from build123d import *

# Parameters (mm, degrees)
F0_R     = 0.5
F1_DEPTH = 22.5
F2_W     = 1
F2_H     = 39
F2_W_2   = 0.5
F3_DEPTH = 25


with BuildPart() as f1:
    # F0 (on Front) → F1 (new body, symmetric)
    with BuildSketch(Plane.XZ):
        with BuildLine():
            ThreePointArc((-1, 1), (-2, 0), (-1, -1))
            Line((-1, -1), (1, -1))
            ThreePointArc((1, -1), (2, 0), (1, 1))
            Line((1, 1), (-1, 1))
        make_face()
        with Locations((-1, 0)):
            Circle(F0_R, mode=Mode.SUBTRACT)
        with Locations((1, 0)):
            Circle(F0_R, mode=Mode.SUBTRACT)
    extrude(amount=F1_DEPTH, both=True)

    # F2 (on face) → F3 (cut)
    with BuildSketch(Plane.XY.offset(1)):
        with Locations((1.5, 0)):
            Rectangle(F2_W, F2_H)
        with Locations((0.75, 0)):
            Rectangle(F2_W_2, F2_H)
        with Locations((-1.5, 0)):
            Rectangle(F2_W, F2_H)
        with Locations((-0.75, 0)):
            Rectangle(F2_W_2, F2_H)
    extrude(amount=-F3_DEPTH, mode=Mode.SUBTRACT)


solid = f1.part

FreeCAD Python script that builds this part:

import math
import FreeCAD as App
import Part
import Sketcher


def add_polygon(sketch, points):
    """Adds a closed chain of lines whose ends are joined by coincident constraints."""
    first, n = sketch.GeometryCount, len(points)
    for a, b in zip(points, points[1:] + points[:1]):
        sketch.addGeometry(Part.LineSegment(App.Vector(*a, 0), App.Vector(*b, 0)), False)
    for i in range(n):
        sketch.addConstraint(Sketcher.Constraint("Coincident", first + i, 2, first + (i + 1) % n, 1))

doc = App.newDocument("Part")
body = doc.addObject("PartDesign::Body", "Body")

# Sketch on XZ plane
sketch1 = body.newObject("Sketcher::SketchObject", "Sketch")
sketch1.AttachmentSupport = (doc.getObject("XZ_Plane"), [""])
sketch1.MapMode = "FlatFace"
sketch1.addGeometry(Part.ArcOfCircle(Part.Circle(App.Vector(-1, 0, 0), App.Vector(0, 0, 1), 1), math.radians(90), math.radians(270)), False)
sketch1.addGeometry(Part.LineSegment(App.Vector(-1, -1, 0), App.Vector(1, -1, 0)), False)
sketch1.addGeometry(Part.ArcOfCircle(Part.Circle(App.Vector(1, 0, 0), App.Vector(0, 0, 1), 1), math.radians(-90), math.radians(90)), False)
sketch1.addGeometry(Part.LineSegment(App.Vector(1, 1, 0), App.Vector(-1, 1, 0)), False)
sketch1.addGeometry(Part.Circle(App.Vector(-1, 0, 0), App.Vector(0, 0, 1), 0.5), False)
sketch1.addGeometry(Part.Circle(App.Vector(1, 0, 0), App.Vector(0, 0, 1), 0.5), False)
sketch1.addConstraint(Sketcher.Constraint("Tangent", 0, 2, 1, 1))
sketch1.addConstraint(Sketcher.Constraint("Tangent", 1, 2, 2, 1))
sketch1.addConstraint(Sketcher.Constraint("Tangent", 2, 2, 3, 1))
sketch1.addConstraint(Sketcher.Constraint("Tangent", 3, 2, 0, 1))
sketch1.addConstraint(Sketcher.Constraint("Horizontal", 1))
sketch1.addConstraint(Sketcher.Constraint("Horizontal", 3))
sketch1.addConstraint(Sketcher.Constraint("Coincident", 4, 3, 0, 3))
sketch1.addConstraint(Sketcher.Constraint("Coincident", 5, 3, 2, 3))
sketch1.addConstraint(Sketcher.Constraint("Equal", 4, 5))
sketch1.addConstraint(Sketcher.Constraint("Symmetric", 0, 3, 2, 3, -1, 1))
sketch1.addConstraint(Sketcher.Constraint("Diameter", 4, 1.0))
sketch1.addConstraint(Sketcher.Constraint("Radius", 0, 1.0))
sketch1.addConstraint(Sketcher.Constraint("DistanceX", 1, 1, 1, 2, 2.0))
pad1 = body.newObject("PartDesign::Pad", "Pad")
pad1.Profile = sketch1
pad1.Length = 45
pad1.Midplane = True

# Sketch on XY plane
sketch2 = body.newObject("Sketcher::SketchObject", "Sketch001")
sketch2.AttachmentSupport = (doc.getObject("XY_Plane"), [""])
sketch2.MapMode = "FlatFace"
sketch2.AttachmentOffset = App.Placement(App.Vector(0, 0, 1), App.Rotation())
add_polygon(sketch2, [(2, -19.5), (2, 19.5), (0.5, 19.5), (0.5, -19.5)])  # lines 0-3
add_polygon(sketch2, [(-2, 19.5), (-2, -19.5), (-0.5, -19.5), (-0.5, 19.5)])  # lines 4-7
sketch2.addConstraint(Sketcher.Constraint("Vertical", 0))
sketch2.addConstraint(Sketcher.Constraint("Horizontal", 1))
sketch2.addConstraint(Sketcher.Constraint("Vertical", 2))
sketch2.addConstraint(Sketcher.Constraint("Horizontal", 3))
sketch2.addConstraint(Sketcher.Constraint("Vertical", 4))
sketch2.addConstraint(Sketcher.Constraint("Horizontal", 5))
sketch2.addConstraint(Sketcher.Constraint("Vertical", 6))
sketch2.addConstraint(Sketcher.Constraint("Horizontal", 7))
sketch2.addConstraint(Sketcher.Constraint("Symmetric", 0, 2, 4, 2, -1, 1))
sketch2.addConstraint(Sketcher.Constraint("Symmetric", 2, 2, 6, 2, -1, 1))
sketch2.addConstraint(Sketcher.Constraint("Horizontal", 3, 2, 4, 2))
sketch2.addConstraint(Sketcher.Constraint("DistanceY", 0, 1, 0, 2, 39.0))
sketch2.addConstraint(Sketcher.Constraint("DistanceX", 1, 2, 1, 1, 1.5))
sketch2.addConstraint(Sketcher.Constraint("DistanceX", -1, 1, 0, 2, 2.0))
pocket1 = body.newObject("PartDesign::Pocket", "Pocket")
pocket1.Profile = sketch2
pocket1.Length = 25

doc.recompute()
